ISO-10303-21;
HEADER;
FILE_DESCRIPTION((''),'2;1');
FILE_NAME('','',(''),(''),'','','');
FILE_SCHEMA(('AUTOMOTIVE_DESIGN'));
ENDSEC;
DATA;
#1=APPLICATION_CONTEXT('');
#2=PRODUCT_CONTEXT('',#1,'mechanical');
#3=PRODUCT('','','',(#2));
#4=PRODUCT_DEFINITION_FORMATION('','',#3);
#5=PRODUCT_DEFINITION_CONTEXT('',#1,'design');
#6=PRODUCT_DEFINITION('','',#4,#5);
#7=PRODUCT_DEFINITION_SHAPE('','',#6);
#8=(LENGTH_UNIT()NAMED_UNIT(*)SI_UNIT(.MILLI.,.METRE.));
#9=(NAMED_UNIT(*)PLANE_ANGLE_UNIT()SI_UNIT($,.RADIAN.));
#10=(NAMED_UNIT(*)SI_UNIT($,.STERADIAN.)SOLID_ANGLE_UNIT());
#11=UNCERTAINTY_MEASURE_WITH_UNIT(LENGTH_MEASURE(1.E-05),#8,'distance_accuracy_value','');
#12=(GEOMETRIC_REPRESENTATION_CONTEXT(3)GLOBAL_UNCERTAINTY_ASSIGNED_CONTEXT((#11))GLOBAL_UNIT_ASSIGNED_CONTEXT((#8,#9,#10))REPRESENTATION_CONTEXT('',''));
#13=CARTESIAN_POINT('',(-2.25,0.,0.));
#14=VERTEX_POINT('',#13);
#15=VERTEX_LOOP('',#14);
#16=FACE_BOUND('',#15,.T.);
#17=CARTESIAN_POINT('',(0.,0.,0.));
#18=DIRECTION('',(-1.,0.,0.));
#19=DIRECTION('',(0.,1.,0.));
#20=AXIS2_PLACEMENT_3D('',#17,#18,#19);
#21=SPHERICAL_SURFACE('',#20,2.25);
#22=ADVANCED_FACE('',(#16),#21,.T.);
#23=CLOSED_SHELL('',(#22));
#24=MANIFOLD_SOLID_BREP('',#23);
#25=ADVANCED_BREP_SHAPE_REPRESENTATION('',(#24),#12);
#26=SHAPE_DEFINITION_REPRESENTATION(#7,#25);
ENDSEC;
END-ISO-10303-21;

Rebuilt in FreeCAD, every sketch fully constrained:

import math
import FreeCAD as App
import Part
import Sketcher

V = App.Vector

doc = App.newDocument("Part")
body = doc.addObject("PartDesign::Body", "Body")

# Sketch on XY plane
sketch1 = body.newObject("Sketcher::SketchObject", "Sketch")
sketch1.AttachmentSupport = (doc.getObject("XY_Plane"), [""])
sketch1.MapMode = "FlatFace"
sketch1.addGeometry([
    Part.LineSegment(V(2.25, 0, 0), V(-2.25, 0, 0)),
    Part.ArcOfCircle(Part.Circle(V(0, 0, 0), V(0, 0, 1), 2.25), math.radians(180), math.radians(360)),
], False)
sketch1.addConstraint([
    Sketcher.Constraint("Coincident", 0, 1, 1, 2),
    Sketcher.Constraint("Coincident", 1, 1, 0, 2),
    Sketcher.Constraint("Horizontal", 0),
    Sketcher.Constraint("Coincident", 1, 3, -1, 1),
    Sketcher.Constraint("PointOnObject", 0, 1, -1),
    Sketcher.Constraint("Radius", 1, 2.25),
])
revolution = body.newObject("PartDesign::Revolution", "Revolution")
revolution.Profile = sketch1
revolution.ReferenceAxis = (sketch1, ["H_Axis"])
revolution.Angle = 360

doc.recompute()
